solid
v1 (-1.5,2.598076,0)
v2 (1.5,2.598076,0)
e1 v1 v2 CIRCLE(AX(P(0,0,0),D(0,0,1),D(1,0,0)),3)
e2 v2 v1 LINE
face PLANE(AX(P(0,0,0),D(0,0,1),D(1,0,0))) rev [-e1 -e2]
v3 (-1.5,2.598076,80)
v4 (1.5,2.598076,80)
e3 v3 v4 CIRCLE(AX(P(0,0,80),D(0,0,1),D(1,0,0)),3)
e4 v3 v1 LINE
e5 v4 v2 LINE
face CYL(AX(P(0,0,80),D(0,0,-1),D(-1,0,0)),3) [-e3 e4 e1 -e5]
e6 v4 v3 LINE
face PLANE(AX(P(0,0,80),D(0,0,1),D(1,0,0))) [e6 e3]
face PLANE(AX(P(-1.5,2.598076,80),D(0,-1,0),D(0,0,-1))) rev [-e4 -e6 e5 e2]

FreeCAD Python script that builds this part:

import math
import FreeCAD as App
import Part
import Sketcher

V = App.Vector
Q = App.Units.Quantity

doc = App.newDocument("Part")
body = doc.addObject("PartDesign::Body", "Body")

sketch1 = doc.addObject("Sketcher::SketchObject", "Sketch")
body.addObject(sketch1)
sketch1.AttachmentSupport = (doc.XY_Plane, [""])
sketch1.MapMode = "FlatFace"
sketch1.addGeometry([
    Part.LineSegment(V(1.5, 2.6, 0), V(-1.5, 2.6, 0)),
    Part.ArcOfCircle(Part.Circle(V(0, 0, 0), V(0, 0, 1), 3), math.radians(120), math.radians(420)),
], False)
sketch1.addConstraint([
    Sketcher.Constraint("Coincident", 0, 1, 1, 2),
    Sketcher.Constraint("Coincident", 1, 1, 0, 2),
    Sketcher.Constraint("Horizontal", 0),
    Sketcher.Constraint("Coincident", 1, 3, -1, 1),
    Sketcher.Constraint("Radius", 1, Q("3 mm")),
    Sketcher.Constraint("DistanceX", 0, 2, 0, 1, Q("3 mm")),
])
pad1 = doc.addObject("PartDesign::Pad", "Pad")
body.addObject(pad1)
pad1.Profile = sketch1
pad1.Length = 80

doc.recompute()
